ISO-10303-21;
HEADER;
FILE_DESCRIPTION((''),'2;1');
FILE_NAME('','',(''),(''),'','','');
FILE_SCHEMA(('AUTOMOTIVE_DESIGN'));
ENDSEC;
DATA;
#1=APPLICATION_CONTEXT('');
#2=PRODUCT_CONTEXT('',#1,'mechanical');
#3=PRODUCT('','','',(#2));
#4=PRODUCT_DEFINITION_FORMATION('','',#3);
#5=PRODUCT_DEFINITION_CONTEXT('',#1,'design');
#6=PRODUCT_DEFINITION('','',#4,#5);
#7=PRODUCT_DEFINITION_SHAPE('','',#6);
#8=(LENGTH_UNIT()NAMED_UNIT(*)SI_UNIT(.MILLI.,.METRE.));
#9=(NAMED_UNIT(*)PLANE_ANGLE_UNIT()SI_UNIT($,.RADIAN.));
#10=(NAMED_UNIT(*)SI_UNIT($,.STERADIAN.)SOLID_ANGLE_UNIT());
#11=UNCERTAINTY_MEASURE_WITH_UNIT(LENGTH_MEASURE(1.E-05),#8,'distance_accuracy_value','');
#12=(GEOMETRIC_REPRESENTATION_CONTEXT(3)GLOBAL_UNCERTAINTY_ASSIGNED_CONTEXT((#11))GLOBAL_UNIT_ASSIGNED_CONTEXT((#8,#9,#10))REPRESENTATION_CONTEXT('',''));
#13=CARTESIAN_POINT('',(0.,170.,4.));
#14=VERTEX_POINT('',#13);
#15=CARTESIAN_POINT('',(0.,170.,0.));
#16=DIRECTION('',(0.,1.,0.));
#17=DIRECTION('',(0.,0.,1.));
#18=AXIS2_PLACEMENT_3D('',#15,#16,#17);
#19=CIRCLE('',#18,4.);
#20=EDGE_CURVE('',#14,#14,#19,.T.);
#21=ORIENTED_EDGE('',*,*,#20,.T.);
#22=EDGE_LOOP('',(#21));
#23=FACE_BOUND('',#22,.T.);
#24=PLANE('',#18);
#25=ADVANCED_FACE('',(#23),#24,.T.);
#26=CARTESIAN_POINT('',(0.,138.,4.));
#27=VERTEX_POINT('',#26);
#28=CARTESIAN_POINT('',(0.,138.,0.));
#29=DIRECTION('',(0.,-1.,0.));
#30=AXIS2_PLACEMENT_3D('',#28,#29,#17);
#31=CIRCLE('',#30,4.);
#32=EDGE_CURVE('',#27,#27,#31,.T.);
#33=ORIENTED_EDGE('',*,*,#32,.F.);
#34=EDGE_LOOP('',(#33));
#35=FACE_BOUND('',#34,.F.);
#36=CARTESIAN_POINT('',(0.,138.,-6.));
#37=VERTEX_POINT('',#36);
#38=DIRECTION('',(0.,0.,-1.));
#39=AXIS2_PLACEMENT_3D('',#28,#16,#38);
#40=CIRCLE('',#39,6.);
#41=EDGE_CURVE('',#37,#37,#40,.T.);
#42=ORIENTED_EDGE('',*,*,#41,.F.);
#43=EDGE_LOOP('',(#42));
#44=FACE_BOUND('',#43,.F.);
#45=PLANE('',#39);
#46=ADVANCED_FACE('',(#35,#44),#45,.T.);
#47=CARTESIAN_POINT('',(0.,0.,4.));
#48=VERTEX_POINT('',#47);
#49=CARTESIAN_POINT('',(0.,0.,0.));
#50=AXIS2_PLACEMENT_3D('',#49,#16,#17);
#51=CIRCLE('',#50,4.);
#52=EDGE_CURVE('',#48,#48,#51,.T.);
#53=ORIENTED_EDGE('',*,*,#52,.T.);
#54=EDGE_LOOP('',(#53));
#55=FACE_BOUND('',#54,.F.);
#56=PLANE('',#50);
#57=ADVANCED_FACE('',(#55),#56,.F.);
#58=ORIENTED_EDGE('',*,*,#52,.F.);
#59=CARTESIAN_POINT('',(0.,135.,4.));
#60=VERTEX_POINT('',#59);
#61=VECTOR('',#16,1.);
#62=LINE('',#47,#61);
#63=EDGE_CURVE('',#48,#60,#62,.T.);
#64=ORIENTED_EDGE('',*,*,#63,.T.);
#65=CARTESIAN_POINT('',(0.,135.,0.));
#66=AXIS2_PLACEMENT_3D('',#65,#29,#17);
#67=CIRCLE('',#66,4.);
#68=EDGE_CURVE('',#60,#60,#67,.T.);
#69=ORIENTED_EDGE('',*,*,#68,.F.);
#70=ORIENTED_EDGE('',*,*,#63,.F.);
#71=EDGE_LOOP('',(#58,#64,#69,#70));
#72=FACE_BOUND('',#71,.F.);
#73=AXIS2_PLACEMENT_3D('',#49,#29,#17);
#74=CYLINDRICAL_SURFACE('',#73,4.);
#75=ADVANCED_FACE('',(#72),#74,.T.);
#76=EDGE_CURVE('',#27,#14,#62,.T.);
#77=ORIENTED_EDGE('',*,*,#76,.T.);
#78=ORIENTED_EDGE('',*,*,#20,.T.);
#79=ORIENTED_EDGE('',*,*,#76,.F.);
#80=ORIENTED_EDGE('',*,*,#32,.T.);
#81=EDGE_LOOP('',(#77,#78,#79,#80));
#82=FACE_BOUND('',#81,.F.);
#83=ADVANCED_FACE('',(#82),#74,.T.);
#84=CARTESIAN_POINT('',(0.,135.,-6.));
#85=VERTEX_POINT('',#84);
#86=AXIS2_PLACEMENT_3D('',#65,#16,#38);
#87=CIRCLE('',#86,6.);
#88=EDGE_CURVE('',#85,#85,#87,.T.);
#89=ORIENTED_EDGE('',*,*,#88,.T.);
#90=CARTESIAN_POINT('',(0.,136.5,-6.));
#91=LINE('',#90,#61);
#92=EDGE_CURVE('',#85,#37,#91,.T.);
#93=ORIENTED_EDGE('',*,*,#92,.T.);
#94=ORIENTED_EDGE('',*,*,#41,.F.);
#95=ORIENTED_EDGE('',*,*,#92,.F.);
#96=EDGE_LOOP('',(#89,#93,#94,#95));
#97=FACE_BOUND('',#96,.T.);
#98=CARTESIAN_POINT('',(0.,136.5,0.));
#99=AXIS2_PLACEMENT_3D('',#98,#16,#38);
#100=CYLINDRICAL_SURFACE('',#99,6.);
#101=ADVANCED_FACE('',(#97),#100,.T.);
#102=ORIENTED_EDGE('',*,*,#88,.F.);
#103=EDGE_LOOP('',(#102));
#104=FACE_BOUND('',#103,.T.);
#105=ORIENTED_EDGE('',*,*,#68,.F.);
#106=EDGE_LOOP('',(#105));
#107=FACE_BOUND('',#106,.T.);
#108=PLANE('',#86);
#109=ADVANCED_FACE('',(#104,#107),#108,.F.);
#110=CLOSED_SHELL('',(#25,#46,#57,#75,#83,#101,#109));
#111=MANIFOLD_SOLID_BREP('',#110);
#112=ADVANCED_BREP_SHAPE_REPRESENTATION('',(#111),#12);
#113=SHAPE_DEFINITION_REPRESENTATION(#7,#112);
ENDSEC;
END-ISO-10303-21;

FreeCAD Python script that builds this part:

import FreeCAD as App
import Part
import Sketcher
from FreeCAD import Vector


def add_polygon(sketch, points):
    """Adds a closed chain of lines whose ends are joined by coincident constraints."""
    first, n = sketch.GeometryCount, len(points)
    for a, b in zip(points, points[1:] + points[:1]):
        sketch.addGeometry(Part.LineSegment(App.Vector(*a, 0), App.Vector(*b, 0)), False)
    for i in range(n):
        sketch.addConstraint(Sketcher.Constraint("Coincident", first + i, 2, first + (i + 1) % n, 1))

doc = App.newDocument("Part")
body = doc.addObject("PartDesign::Body", "Body")

sketch1 = body.newObject("Sketcher::SketchObject", "Sketch")
sketch1.AttachmentSupport = (doc.getObject("XZ_Plane"), [""])
sketch1.MapMode = "FlatFace"
sketch1.addGeometry(Part.Circle(Vector(0, 0, 0), Vector(0, 0, 1), 4), False)
sketch1.addConstraint([
    Sketcher.Constraint("Coincident", 0, 3, -1, 1),
    Sketcher.Constraint("Diameter", 0, 8.0),
])
pad1 = body.newObject("PartDesign::Pad", "Pad")
pad1.Profile = sketch1
pad1.Length = 170
pad1.Reversed = True

sketch2 = body.newObject("Sketcher::SketchObject", "Sketch001")
sketch2.AttachmentSupport = (doc.getObject("XY_Plane"), [""])
sketch2.MapMode = "FlatFace"
add_polygon(sketch2, [(0, 138), (0, 135), (6, 135), (6, 138)])
sketch2.addConstraint([
    Sketcher.Constraint("Vertical", 0),
    Sketcher.Constraint("Horizontal", 1),
    Sketcher.Constraint("Vertical", 2),
    Sketcher.Constraint("Horizontal", 3),
    Sketcher.Constraint("PointOnObject", 0, 2, -2),
    Sketcher.Constraint("DistanceX", 1, 1, 1, 2, 6.0),
    Sketcher.Constraint("DistanceY", 0, 2, 0, 1, 3.0),
    Sketcher.Constraint("DistanceY", -1, 1, 0, 2, 135.0),
])
revolution = body.newObject("PartDesign::Revolution", "Revolution")
revolution.Profile = sketch2
revolution.ReferenceAxis = (sketch2, ["V_Axis"])
revolution.Angle = 360

doc.recompute()
